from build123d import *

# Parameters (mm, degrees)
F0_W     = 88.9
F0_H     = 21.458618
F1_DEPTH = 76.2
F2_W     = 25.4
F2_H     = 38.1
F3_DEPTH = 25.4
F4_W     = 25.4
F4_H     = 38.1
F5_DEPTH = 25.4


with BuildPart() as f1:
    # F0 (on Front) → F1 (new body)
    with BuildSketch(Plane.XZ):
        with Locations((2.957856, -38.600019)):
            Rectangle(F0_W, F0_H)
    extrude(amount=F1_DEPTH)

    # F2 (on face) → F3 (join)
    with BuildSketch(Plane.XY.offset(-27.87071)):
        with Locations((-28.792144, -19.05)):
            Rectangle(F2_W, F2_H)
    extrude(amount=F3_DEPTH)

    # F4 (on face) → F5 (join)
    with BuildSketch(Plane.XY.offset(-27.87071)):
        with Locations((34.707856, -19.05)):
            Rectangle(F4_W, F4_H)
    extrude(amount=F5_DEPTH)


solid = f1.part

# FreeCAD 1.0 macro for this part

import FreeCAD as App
import Part
import Sketcher
from FreeCAD import Vector
Q = App.Units.Quantity


def add_polygon(sketch, points):
    """Adds a closed chain of lines whose ends are joined by coincident constraints."""
    first, n = sketch.GeometryCount, len(points)
    for a, b in zip(points, points[1:] + points[:1]):
        sketch.addGeometry(Part.LineSegment(App.Vector(*a, 0), App.Vector(*b, 0)), False)
    for i in range(n):
        sketch.addConstraint(Sketcher.Constraint("Coincident", first + i, 2, first + (i + 1) % n, 1))

doc = App.newDocument("Part")
params = doc.addObject("Spreadsheet::Sheet", "Params")
for row, (alias, value) in enumerate([
    ("sketch1_width", "3.5 in"),
    ("pad1_length", "3 in"),
    ("sketch2_width", "1 in"),
    ("sketch2_height", "1.5 in"),
    ("pad2_length", "1 in"),
    ("sketch3_width", "1 in"),
    ("sketch3_height", "1.5 in"),
    ("pad3_length", "1 in"),
], start=1):
    params.set(f"A{row}", alias)
    params.set(f"B{row}", "=" + value)
    params.setAlias(f"B{row}", alias)

body = doc.addObject("PartDesign::Body", "Body")

sketch1 = doc.addObject("Sketcher::SketchObject", "Sketch")
body.addObject(sketch1)
sketch1.AttachmentSupport = (doc.XZ_Plane, [""])
sketch1.MapMode = "FlatFace"
add_polygon(sketch1, [(-41, -28), (-41, -49), (47, -49), (47, -28)])
sketch1.addConstraint([
    Sketcher.Constraint("Vertical", 0),
    Sketcher.Constraint("Horizontal", 1),
    Sketcher.Constraint("Vertical", 2),
    Sketcher.Constraint("Horizontal", 3),
    Sketcher.Constraint("DistanceX", 1, 1, 1, 2, Q("3.5 in")),
    Sketcher.Constraint("DistanceY", 0, 2, 0, 1, Q("21.458618 mm")),
    Sketcher.Constraint("DistanceY", 2, 2, -1, 1, Q("27.87071 mm")),
    Sketcher.Constraint("DistanceX", 0, 2, -1, 1, Q("41.492144 mm")),
])
sketch1.setExpression("Constraints[8]", "Params.sketch1_width")
pad1 = doc.addObject("PartDesign::Pad", "Pad")
body.addObject(pad1)
pad1.Profile = sketch1
pad1.setExpression("Length", "Params.pad1_length")

sketch2 = doc.addObject("Sketcher::SketchObject", "Sketch001")
body.addObject(sketch2)
sketch2.AttachmentSupport = (doc.XY_Plane, [""])
sketch2.MapMode = "FlatFace"
sketch2.AttachmentOffset = App.Placement(Vector(0, 0, -27.87071), App.Rotation())
add_polygon(sketch2, [(-41, 0), (-41, -38), (-16, -38), (-16, 0)])
sketch2.addConstraint([
    Sketcher.Constraint("Vertical", 0),
    Sketcher.Constraint("Horizontal", 1),
    Sketcher.Constraint("Vertical", 2),
    Sketcher.Constraint("Horizontal", 3),
    Sketcher.Constraint("PointOnObject", 2, 2, -1),
    Sketcher.Constraint("DistanceX", 1, 1, 1, 2, Q("1 in")),
    Sketcher.Constraint("DistanceY", 0, 2, 0, 1, Q("1.5 in")),
    Sketcher.Constraint("DistanceX", 0, 2, -1, 1, Q("41.492144 mm")),
])
sketch2.setExpression("Constraints[9]", "Params.sketch2_width")
sketch2.setExpression("Constraints[10]", "Params.sketch2_height")
pad2 = doc.addObject("PartDesign::Pad", "Pad001")
body.addObject(pad2)
pad2.Profile = sketch2
pad2.setExpression("Length", "Params.pad2_length")

sketch3 = doc.addObject("Sketcher::SketchObject", "Sketch002")
body.addObject(sketch3)
sketch3.AttachmentSupport = (doc.XY_Plane, [""])
sketch3.MapMode = "FlatFace"
sketch3.AttachmentOffset = App.Placement(Vector(0, 0, -27.87071), App.Rotation())
add_polygon(sketch3, [(22, 0), (22, -38), (47, -38), (47, 0)])
sketch3.addConstraint([
    Sketcher.Constraint("Vertical", 0),
    Sketcher.Constraint("Horizontal", 1),
    Sketcher.Constraint("Vertical", 2),
    Sketcher.Constraint("Horizontal", 3),
    Sketcher.Constraint("PointOnObject", 2, 2, -1),
    Sketcher.Constraint("DistanceX", 1, 1, 1, 2, Q("1 in")),
    Sketcher.Constraint("DistanceY", 0, 2, 0, 1, Q("1.5 in")),
    Sketcher.Constraint("DistanceX", -1, 1, 0, 2, Q("22.007856 mm")),
])
sketch3.setExpression("Constraints[9]", "Params.sketch3_width")
sketch3.setExpression("Constraints[10]", "Params.sketch3_height")
pad3 = doc.addObject("PartDesign::Pad", "Pad002")
body.addObject(pad3)
pad3.Profile = sketch3
pad3.setExpression("Length", "Params.pad3_length")

doc.recompute()
